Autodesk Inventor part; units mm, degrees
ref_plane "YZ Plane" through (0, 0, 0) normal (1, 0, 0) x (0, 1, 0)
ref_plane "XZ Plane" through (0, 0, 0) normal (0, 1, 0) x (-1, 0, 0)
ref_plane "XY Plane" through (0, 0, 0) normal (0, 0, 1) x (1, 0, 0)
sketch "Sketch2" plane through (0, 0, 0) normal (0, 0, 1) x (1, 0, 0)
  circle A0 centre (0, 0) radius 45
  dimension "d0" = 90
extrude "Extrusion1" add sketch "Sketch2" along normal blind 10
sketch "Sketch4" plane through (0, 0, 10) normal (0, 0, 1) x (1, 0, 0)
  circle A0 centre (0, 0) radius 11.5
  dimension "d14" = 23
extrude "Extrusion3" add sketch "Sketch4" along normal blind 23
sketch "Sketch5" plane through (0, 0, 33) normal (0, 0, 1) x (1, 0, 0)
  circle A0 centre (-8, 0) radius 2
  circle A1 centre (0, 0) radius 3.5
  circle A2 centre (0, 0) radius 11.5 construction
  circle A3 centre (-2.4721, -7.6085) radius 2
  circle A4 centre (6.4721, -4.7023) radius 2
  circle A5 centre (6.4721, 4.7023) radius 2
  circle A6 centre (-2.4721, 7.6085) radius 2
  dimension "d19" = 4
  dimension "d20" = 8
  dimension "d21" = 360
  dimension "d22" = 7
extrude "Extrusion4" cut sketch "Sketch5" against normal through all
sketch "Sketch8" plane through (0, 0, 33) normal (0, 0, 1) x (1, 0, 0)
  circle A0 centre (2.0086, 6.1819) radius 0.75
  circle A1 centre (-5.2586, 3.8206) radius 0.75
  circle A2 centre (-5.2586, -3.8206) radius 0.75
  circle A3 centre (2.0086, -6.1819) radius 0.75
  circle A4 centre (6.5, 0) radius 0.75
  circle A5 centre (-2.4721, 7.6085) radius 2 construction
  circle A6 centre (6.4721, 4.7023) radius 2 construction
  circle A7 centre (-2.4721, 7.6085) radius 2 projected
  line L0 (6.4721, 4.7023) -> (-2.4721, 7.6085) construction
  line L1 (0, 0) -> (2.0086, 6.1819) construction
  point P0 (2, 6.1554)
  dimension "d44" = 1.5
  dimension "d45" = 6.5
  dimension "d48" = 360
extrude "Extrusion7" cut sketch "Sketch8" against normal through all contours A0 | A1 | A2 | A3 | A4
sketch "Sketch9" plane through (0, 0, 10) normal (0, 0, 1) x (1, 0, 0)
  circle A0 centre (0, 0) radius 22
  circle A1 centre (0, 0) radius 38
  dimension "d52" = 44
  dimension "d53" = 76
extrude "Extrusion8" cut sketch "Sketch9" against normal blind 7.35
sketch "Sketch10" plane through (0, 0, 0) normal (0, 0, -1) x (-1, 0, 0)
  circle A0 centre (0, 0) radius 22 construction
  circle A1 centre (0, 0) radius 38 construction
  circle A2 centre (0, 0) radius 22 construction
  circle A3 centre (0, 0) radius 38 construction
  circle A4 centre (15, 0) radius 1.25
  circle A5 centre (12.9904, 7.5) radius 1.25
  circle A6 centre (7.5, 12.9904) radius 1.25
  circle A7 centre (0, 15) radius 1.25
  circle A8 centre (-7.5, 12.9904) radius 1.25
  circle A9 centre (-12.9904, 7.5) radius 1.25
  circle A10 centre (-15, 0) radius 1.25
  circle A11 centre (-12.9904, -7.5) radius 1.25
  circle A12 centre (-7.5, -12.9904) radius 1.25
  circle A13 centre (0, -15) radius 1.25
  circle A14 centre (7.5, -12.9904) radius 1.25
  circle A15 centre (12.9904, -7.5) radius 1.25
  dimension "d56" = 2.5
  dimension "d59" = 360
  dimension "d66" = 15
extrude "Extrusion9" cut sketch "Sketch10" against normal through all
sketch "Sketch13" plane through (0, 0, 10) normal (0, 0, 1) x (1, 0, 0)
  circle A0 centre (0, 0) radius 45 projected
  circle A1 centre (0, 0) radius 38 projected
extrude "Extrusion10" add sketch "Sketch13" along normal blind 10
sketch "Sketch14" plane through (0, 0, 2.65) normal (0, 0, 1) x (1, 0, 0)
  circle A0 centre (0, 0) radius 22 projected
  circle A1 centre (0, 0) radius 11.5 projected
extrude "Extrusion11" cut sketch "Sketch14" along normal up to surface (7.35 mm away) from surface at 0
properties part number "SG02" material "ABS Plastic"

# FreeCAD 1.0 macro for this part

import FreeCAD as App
import Part
import Sketcher

doc = App.newDocument("Part")
params = doc.addObject("Spreadsheet::Sheet", "Params")
for row, (alias, value) in enumerate([
    ("sketch1_diameter", "90 mm"),
    ("pad1_length", "10 mm"),
    ("sketch2_diameter", "23 mm"),
    ("pad2_length", "23 mm"),
    ("sketch3_diameter", "4 mm"),
    ("sketch3_diameter2", "7 mm"),
    ("sketch4_diameter", "1.5 mm"),
    ("sketch5_diameter", "76 mm"),
    ("sketch5_diameter2", "44 mm"),
    ("pocket3_length", "7.35 mm"),
    ("sketch6_diameter", "2.5 mm"),
    ("sketch7_diameter", "90 mm"),
    ("sketch7_diameter2", "76 mm"),
    ("pad3_length", "10 mm"),
    ("sketch8_diameter", "44 mm"),
    ("sketch8_diameter2", "23 mm"),
    ("pocket5_length", "7.35 mm"),
], start=1):
    params.set(f"A{row}", alias)
    params.set(f"B{row}", "=" + value)
    params.setAlias(f"B{row}", alias)

body = doc.addObject("PartDesign::Body", "Body")

# Sketch on XY plane
sketch1 = body.newObject("Sketcher::SketchObject", "Sketch")
sketch1.AttachmentSupport = (doc.getObject("XY_Plane"), [""])
sketch1.MapMode = "FlatFace"
sketch1.addGeometry(Part.Circle(App.Vector(0, 0, 0), App.Vector(0, 0, 1), 45), False)
sketch1.addConstraint([
    Sketcher.Constraint("Coincident", 0, 3, -1, 1),
    Sketcher.Constraint("Diameter", 0, 90.0),
])
sketch1.setExpression("Constraints[1]", "Params.sketch1_diameter")
pad1 = body.newObject("PartDesign::Pad", "Pad")
pad1.Profile = sketch1
pad1.setExpression("Length", "Params.pad1_length")

# Sketch on XY plane
sketch2 = body.newObject("Sketcher::SketchObject", "Sketch001")
sketch2.AttachmentSupport = (doc.getObject("XY_Plane"), [""])
sketch2.MapMode = "FlatFace"
sketch2.AttachmentOffset = App.Placement(App.Vector(0, 0, 10), App.Rotation())
sketch2.addGeometry(Part.Circle(App.Vector(0, 0, 0), App.Vector(0, 0, 1), 12), False)
sketch2.addConstraint([
    Sketcher.Constraint("Coincident", 0, 3, -1, 1),
    Sketcher.Constraint("Diameter", 0, 23.0),
])
sketch2.setExpression("Constraints[1]", "Params.sketch2_diameter")
pad2 = body.newObject("PartDesign::Pad", "Pad001")
pad2.Profile = sketch2
pad2.setExpression("Length", "Params.pad2_length")

# Sketch on XY plane
sketch3 = body.newObject("Sketcher::SketchObject", "Sketch002")
sketch3.AttachmentSupport = (doc.getObject("XY_Plane"), [""])
sketch3.MapMode = "FlatFace"
sketch3.AttachmentOffset = App.Placement(App.Vector(0, 0, 33), App.Rotation())
sketch3.addGeometry([
    Part.Circle(App.Vector(-8, 0, 0), App.Vector(0, 0, 1), 2),  # 0
    Part.Circle(App.Vector(0, 0, 0), App.Vector(0, 0, 1), 3.5),  # 1
    Part.Circle(App.Vector(-2.5, -7.6, 0), App.Vector(0, 0, 1), 2),  # 2
    Part.Circle(App.Vector(6.5, -4.7, 0), App.Vector(0, 0, 1), 2),  # 3
    Part.Circle(App.Vector(6.5, 4.7, 0), App.Vector(0, 0, 1), 2),  # 4
    Part.Circle(App.Vector(-2.5, 7.6, 0), App.Vector(0, 0, 1), 2),  # 5
], False)
sketch3.addConstraint([
    Sketcher.Constraint("Coincident", 1, 3, -1, 1),
    Sketcher.Constraint("Equal", 0, 2),
    Sketcher.Constraint("Equal", 2, 3),
    Sketcher.Constraint("Equal", 3, 4),
    Sketcher.Constraint("Equal", 4, 5),
    Sketcher.Constraint("Symmetric", 3, 3, 4, 3, -1),
    Sketcher.Constraint("Symmetric", 2, 3, 5, 3, -1),
    Sketcher.Constraint("PointOnObject", 0, 3, -1),
    Sketcher.Constraint("Diameter", 0, 4.0),
    Sketcher.Constraint("Diameter", 1, 7.0),
    Sketcher.Constraint("DistanceX", 0, 3, -1, 1, 8.0),
    Sketcher.Constraint("DistanceX", 2, 3, -1, 1, 2.472),
    Sketcher.Constraint("DistanceX", -1, 1, 3, 3, 6.472),
    Sketcher.Constraint("DistanceY", 2, 3, 5, 3, 15.217),
    Sketcher.Constraint("DistanceY", 3, 3, -1, 1, 4.7023),
])
sketch3.setExpression("Constraints[8]", "Params.sketch3_diameter")
sketch3.setExpression("Constraints[9]", "Params.sketch3_diameter2")
pocket1 = body.newObject("PartDesign::Pocket", "Pocket")
pocket1.Profile = sketch3
pocket1.Type = "ThroughAll"

# Sketch on XY plane
sketch4 = body.newObject("Sketcher::SketchObject", "Sketch003")
sketch4.AttachmentSupport = (doc.getObject("XY_Plane"), [""])
sketch4.MapMode = "FlatFace"
sketch4.AttachmentOffset = App.Placement(App.Vector(0, 0, 33), App.Rotation())
sketch4.addGeometry([
    Part.Circle(App.Vector(2, 6.2, 0), App.Vector(0, 0, 1), 0.8),  # 0
    Part.Circle(App.Vector(-5.3, 3.8, 0), App.Vector(0, 0, 1), 0.8),  # 1
    Part.Circle(App.Vector(-5.3, -3.8, 0), App.Vector(0, 0, 1), 0.8),  # 2
    Part.Circle(App.Vector(2, -6.2, 0), App.Vector(0, 0, 1), 0.8),  # 3
    Part.Circle(App.Vector(6.5, 0, 0), App.Vector(0, 0, 1), 0.8),  # 4
], False)
sketch4.addConstraint([
    Sketcher.Constraint("Equal", 0, 1),
    Sketcher.Constraint("Equal", 1, 2),
    Sketcher.Constraint("Equal", 2, 3),
    Sketcher.Constraint("Equal", 3, 4),
    Sketcher.Constraint("Symmetric", 1, 3, 2, 3, -1),
    Sketcher.Constraint("Symmetric", 0, 3, 3, 3, -1),
    Sketcher.Constraint("PointOnObject", 4, 3, -1),
    Sketcher.Constraint("Diameter", 0, 1.5),
    Sketcher.Constraint("DistanceX", -1, 1, 4, 3, 6.5),
    Sketcher.Constraint("DistanceY", -1, 1, 0, 3, 6.182),
    Sketcher.Constraint("DistanceX", -1, 1, 0, 3, 2.0086),
    Sketcher.Constraint("DistanceX", 1, 3, -1, 1, 5.2586),
    Sketcher.Constraint("DistanceY", -1, 1, 1, 3, 3.8206),
])
sketch4.setExpression("Constraints[7]", "Params.sketch4_diameter")
pocket2 = body.newObject("PartDesign::Pocket", "Pocket001")
pocket2.Profile = sketch4
pocket2.Type = "ThroughAll"

# Sketch on XY plane
sketch5 = body.newObject("Sketcher::SketchObject", "Sketch004")
sketch5.AttachmentSupport = (doc.getObject("XY_Plane"), [""])
sketch5.MapMode = "FlatFace"
sketch5.AttachmentOffset = App.Placement(App.Vector(0, 0, 10), App.Rotation())
sketch5.addGeometry([
    Part.Circle(App.Vector(0, 0, 0), App.Vector(0, 0, 1), 38),
    Part.Circle(App.Vector(0, 0, 0), App.Vector(0, 0, 1), 22),
], False)
sketch5.addConstraint([
    Sketcher.Constraint("Coincident", 0, 3, -1, 1),
    Sketcher.Constraint("Coincident", 1, 3, -1, 1),
    Sketcher.Constraint("Diameter", 0, 76.0),
    Sketcher.Constraint("Diameter", 1, 44.0),
])
sketch5.setExpression("Constraints[2]", "Params.sketch5_diameter")
sketch5.setExpression("Constraints[3]", "Params.sketch5_diameter2")
pocket3 = body.newObject("PartDesign::Pocket", "Pocket002")
pocket3.Profile = sketch5
pocket3.setExpression("Length", "Params.pocket3_length")

# Sketch on XY plane
sketch6 = body.newObject("Sketcher::SketchObject", "Sketch005")
sketch6.AttachmentSupport = (doc.getObject("XY_Plane"), [""])
sketch6.MapMode = "FlatFace"
sketch6.addGeometry([
    Part.Circle(App.Vector(-15, 0, 0), App.Vector(0, 0, 1), 1.2),  # 0
    Part.Circle(App.Vector(-13, 7.5, 0), App.Vector(0, 0, 1), 1.2),  # 1
    Part.Circle(App.Vector(-7.5, 13, 0), App.Vector(0, 0, 1), 1.2),  # 2
    Part.Circle(App.Vector(0, 15, 0), App.Vector(0, 0, 1), 1.2),  # 3
    Part.Circle(App.Vector(7.5, 13, 0), App.Vector(0, 0, 1), 1.2),  # 4
    Part.Circle(App.Vector(13, 7.5, 0), App.Vector(0, 0, 1), 1.2),  # 5
    Part.Circle(App.Vector(15, 0, 0), App.Vector(0, 0, 1), 1.2),  # 6
    Part.Circle(App.Vector(13, -7.5, 0), App.Vector(0, 0, 1), 1.2),  # 7
    Part.Circle(App.Vector(7.5, -13, 0), App.Vector(0, 0, 1), 1.2),  # 8
    Part.Circle(App.Vector(0, -15, 0), App.Vector(0, 0, 1), 1.2),  # 9
    Part.Circle(App.Vector(-7.5, -13, 0), App.Vector(0, 0, 1), 1.2),  # 10
    Part.Circle(App.Vector(-13, -7.5, 0), App.Vector(0, 0, 1), 1.2),  # 11
], False)
sketch6.addConstraint([
    Sketcher.Constraint("Equal", 0, 1),
    Sketcher.Constraint("Equal", 1, 2),
    Sketcher.Constraint("Equal", 2, 3),
    Sketcher.Constraint("Equal", 3, 4),
    Sketcher.Constraint("Equal", 4, 5),
    Sketcher.Constraint("Equal", 5, 6),
    Sketcher.Constraint("Equal", 6, 7),
    Sketcher.Constraint("Equal", 7, 8),
    Sketcher.Constraint("Equal", 8, 9),
    Sketcher.Constraint("Equal", 9, 10),
    Sketcher.Constraint("Equal", 10, 11),
    Sketcher.Constraint("Symmetric", 0, 3, 6, 3, -1, 1),
    Sketcher.Constraint("Symmetric", 1, 3, 7, 3, -1, 1),
    Sketcher.Constraint("Symmetric", 2, 3, 8, 3, -1, 1),
    Sketcher.Constraint("Symmetric", 3, 3, 9, 3, -1, 1),
    Sketcher.Constraint("Symmetric", 4, 3, 10, 3, -1, 1),
    Sketcher.Constraint("Symmetric", 5, 3, 11, 3, -1, 1),
    Sketcher.Constraint("Symmetric", 2, 3, 4, 3, -2),
    Sketcher.Constraint("Symmetric", 1, 3, 5, 3, -2),
    Sketcher.Constraint("PointOnObject", 0, 3, -1),
    Sketcher.Constraint("PointOnObject", 3, 3, -2),
    Sketcher.Constraint("Diameter", 0, 2.5),
    Sketcher.Constraint("DistanceX", 0, 3, -1, 1, 15.0),
    Sketcher.Constraint("DistanceY", -1, 1, 3, 3, 15.0),
    Sketcher.Constraint("DistanceX", 2, 3, 4, 3, 15.0),
    Sketcher.Constraint("DistanceY", 7, 3, 5, 3, 15.0),
    Sketcher.Constraint("DistanceX", 1, 3, -1, 1, 12.9904),
    Sketcher.Constraint("DistanceY", -1, 1, 2, 3, 12.9904),
])
sketch6.setExpression("Constraints[21]", "Params.sketch6_diameter")
pocket4 = body.newObject("PartDesign::Pocket", "Pocket003")
pocket4.Profile = sketch6
pocket4.Type = "ThroughAll"
pocket4.Reversed = True

# Sketch on XY plane
sketch7 = body.newObject("Sketcher::SketchObject", "Sketch006")
sketch7.AttachmentSupport = (doc.getObject("XY_Plane"), [""])
sketch7.MapMode = "FlatFace"
sketch7.AttachmentOffset = App.Placement(App.Vector(0, 0, 10), App.Rotation())
sketch7.addGeometry([
    Part.Circle(App.Vector(0, 0, 0), App.Vector(0, 0, 1), 45),
    Part.Circle(App.Vector(0, 0, 0), App.Vector(0, 0, 1), 38),
], False)
sketch7.addConstraint([
    Sketcher.Constraint("Coincident", 0, 3, -1, 1),
    Sketcher.Constraint("Coincident", 1, 3, -1, 1),
    Sketcher.Constraint("Diameter", 0, 90.0),
    Sketcher.Constraint("Diameter", 1, 76.0),
])
sketch7.setExpression("Constraints[2]", "Params.sketch7_diameter")
sketch7.setExpression("Constraints[3]", "Params.sketch7_diameter2")
pad3 = body.newObject("PartDesign::Pad", "Pad002")
pad3.Profile = sketch7
pad3.setExpression("Length", "Params.pad3_length")

# Sketch on XY plane
sketch8 = body.newObject("Sketcher::SketchObject", "Sketch007")
sketch8.AttachmentSupport = (doc.getObject("XY_Plane"), [""])
sketch8.MapMode = "FlatFace"
sketch8.AttachmentOffset = App.Placement(App.Vector(0, 0, 2.65), App.Rotation())
sketch8.addGeometry([
    Part.Circle(App.Vector(0, 0, 0), App.Vector(0, 0, 1), 22),
    Part.Circle(App.Vector(0, 0, 0), App.Vector(0, 0, 1), 12),
], False)
sketch8.addConstraint([
    Sketcher.Constraint("Coincident", 0, 3, -1, 1),
    Sketcher.Constraint("Coincident", 1, 3, -1, 1),
    Sketcher.Constraint("Diameter", 0, 44.0),
    Sketcher.Constraint("Diameter", 1, 23.0),
])
sketch8.setExpression("Constraints[2]", "Params.sketch8_diameter")
sketch8.setExpression("Constraints[3]", "Params.sketch8_diameter2")
pocket5 = body.newObject("PartDesign::Pocket", "Pocket004")
pocket5.Profile = sketch8
pocket5.setExpression("Length", "Params.pocket5_length")
pocket5.Reversed = True

doc.recompute()
